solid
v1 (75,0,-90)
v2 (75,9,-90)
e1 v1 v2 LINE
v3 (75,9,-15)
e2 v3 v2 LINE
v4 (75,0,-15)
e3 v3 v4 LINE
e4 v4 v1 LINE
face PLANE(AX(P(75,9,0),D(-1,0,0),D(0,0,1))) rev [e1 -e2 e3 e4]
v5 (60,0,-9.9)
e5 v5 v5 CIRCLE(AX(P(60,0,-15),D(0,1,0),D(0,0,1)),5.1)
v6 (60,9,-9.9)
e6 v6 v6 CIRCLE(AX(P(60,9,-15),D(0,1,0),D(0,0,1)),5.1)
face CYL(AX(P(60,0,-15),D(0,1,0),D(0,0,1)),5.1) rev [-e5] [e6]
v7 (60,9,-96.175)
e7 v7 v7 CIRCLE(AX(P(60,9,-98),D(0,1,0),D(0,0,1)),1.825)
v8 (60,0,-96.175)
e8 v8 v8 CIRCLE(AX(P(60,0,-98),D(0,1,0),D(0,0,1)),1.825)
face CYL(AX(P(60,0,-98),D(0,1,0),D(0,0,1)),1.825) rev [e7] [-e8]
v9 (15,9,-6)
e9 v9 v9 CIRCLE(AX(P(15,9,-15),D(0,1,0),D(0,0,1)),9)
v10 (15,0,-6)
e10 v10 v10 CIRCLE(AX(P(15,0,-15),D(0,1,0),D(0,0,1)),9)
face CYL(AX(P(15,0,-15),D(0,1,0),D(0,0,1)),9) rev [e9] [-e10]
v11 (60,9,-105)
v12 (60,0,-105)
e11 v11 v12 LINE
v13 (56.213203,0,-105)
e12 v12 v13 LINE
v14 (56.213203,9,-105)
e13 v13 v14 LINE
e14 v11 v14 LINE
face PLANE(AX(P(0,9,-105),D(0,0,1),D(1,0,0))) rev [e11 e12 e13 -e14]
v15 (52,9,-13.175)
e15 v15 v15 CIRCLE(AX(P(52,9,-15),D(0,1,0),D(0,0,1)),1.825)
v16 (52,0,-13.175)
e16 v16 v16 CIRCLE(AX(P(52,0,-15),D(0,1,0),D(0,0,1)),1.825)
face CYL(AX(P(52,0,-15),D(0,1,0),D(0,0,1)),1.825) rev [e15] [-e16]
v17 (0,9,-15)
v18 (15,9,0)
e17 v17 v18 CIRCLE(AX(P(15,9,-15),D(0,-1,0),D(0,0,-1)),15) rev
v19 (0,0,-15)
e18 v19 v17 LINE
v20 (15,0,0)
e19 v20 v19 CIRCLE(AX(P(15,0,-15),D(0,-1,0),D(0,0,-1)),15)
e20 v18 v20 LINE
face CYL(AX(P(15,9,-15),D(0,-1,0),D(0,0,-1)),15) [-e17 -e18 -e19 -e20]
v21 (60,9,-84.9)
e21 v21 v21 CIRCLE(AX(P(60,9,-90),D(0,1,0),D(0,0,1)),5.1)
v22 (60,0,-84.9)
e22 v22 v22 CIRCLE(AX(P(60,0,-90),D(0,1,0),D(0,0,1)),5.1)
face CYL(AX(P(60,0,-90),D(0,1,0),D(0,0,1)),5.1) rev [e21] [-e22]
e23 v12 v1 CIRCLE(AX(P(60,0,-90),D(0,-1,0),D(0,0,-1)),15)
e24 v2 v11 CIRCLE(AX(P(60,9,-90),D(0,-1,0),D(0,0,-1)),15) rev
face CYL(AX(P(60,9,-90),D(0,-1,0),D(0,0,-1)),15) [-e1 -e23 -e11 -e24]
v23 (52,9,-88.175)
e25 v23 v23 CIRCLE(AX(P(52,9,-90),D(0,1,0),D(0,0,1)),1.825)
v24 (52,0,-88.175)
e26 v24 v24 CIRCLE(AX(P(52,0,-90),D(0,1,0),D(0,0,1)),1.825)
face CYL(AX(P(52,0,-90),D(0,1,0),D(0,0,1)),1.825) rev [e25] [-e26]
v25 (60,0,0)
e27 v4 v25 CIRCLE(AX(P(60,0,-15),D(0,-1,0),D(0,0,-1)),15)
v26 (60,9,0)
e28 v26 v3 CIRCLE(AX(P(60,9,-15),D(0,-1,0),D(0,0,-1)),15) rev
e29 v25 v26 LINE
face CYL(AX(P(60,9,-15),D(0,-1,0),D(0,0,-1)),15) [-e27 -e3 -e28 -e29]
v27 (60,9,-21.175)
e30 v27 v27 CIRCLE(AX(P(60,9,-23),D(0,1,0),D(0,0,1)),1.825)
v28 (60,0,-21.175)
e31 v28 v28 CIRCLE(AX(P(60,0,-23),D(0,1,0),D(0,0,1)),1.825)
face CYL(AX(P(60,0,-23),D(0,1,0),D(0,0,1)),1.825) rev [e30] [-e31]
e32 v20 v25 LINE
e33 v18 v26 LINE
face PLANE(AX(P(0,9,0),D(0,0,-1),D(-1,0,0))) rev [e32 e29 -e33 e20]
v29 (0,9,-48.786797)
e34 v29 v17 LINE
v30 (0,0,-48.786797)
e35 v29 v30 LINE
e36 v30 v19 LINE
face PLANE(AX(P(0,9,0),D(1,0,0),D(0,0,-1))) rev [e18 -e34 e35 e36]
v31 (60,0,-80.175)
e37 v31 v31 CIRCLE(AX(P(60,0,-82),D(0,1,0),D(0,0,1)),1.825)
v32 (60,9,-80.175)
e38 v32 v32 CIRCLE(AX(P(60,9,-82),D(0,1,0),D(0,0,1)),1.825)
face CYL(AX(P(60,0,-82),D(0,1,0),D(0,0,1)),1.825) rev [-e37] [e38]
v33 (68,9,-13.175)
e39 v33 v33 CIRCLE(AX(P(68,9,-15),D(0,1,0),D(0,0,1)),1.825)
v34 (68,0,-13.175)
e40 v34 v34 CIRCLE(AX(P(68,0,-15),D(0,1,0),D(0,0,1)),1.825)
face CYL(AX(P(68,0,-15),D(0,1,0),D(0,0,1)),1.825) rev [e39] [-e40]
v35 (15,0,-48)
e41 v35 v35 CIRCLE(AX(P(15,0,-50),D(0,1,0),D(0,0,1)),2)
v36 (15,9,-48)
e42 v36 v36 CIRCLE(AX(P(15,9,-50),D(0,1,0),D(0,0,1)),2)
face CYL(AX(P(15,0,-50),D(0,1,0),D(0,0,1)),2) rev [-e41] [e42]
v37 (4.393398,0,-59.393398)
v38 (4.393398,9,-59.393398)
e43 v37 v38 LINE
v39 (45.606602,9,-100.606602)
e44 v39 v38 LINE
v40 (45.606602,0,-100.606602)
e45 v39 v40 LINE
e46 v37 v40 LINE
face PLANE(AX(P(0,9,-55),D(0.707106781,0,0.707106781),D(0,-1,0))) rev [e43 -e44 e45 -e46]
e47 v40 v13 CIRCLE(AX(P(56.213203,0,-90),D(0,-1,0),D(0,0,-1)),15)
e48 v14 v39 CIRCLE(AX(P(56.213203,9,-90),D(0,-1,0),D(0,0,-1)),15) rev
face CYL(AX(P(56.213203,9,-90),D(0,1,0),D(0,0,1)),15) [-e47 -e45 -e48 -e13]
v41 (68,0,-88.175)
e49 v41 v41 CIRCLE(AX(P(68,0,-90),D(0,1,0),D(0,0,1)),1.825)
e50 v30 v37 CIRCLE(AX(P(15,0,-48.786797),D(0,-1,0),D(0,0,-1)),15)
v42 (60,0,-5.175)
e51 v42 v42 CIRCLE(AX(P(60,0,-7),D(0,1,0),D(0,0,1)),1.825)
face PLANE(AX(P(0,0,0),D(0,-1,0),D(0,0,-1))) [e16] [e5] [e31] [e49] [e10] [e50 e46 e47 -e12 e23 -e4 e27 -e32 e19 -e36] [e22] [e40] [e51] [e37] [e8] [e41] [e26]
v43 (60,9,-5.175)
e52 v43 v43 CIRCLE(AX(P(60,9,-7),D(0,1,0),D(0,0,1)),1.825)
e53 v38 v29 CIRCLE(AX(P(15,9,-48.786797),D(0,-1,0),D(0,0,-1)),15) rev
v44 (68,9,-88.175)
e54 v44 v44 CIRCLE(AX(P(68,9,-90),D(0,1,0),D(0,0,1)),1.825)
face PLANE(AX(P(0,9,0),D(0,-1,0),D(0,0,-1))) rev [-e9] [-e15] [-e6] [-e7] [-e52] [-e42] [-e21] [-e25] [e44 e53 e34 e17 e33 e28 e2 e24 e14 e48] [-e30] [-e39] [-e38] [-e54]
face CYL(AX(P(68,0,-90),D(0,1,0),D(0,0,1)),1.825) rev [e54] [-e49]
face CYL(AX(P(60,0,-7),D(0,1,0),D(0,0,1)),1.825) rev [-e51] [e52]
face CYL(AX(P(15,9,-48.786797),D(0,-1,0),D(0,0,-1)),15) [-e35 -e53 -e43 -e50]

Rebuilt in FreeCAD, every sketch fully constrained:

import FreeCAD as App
import Part
import Sketcher


def edges_at(feature, points):
    """Names of the edges that pass closest to the given points."""
    edges = feature.Shape.Edges
    near = lambda p: min(range(len(edges)), key=lambda i: edges[i].distToShape(Part.Vertex(*p))[0])
    return sorted({f"Edge{near(p) + 1}" for p in points})

doc = App.newDocument("Part")
body = doc.addObject("PartDesign::Body", "Body")

# Sketch on XZ plane
sketch1 = body.newObject("Sketcher::SketchObject", "Sketch")
sketch1.AttachmentSupport = (doc.getObject("XZ_Plane"), [""])
sketch1.MapMode = "FlatFace"
sketch1.addGeometry(Part.LineSegment(App.Vector(0, -105, 0), App.Vector(0, 0, 0)), False)
sketch1.addGeometry(Part.LineSegment(App.Vector(0, 0, 0), App.Vector(75, 0, 0)), False)
sketch1.addGeometry(Part.LineSegment(App.Vector(75, 0, 0), App.Vector(75, -105, 0)), False)
sketch1.addGeometry(Part.LineSegment(App.Vector(75, -105, 0), App.Vector(0, -105, 0)), False)
sketch1.addConstraint(Sketcher.Constraint("Coincident", 0, 2, 1, 1))
sketch1.addConstraint(Sketcher.Constraint("Coincident", 1, 2, 2, 1))
sketch1.addConstraint(Sketcher.Constraint("Coincident", 2, 2, 3, 1))
sketch1.addConstraint(Sketcher.Constraint("Coincident", 3, 2, 0, 1))
sketch1.addConstraint(Sketcher.Constraint("Vertical", 0))
sketch1.addConstraint(Sketcher.Constraint("Horizontal", 1))
sketch1.addConstraint(Sketcher.Constraint("Vertical", 2))
sketch1.addConstraint(Sketcher.Constraint("Horizontal", 3))
sketch1.addConstraint(Sketcher.Constraint("Coincident", 0, 2, -1, 1))
sketch1.addConstraint(Sketcher.Constraint("DistanceX", 1, 1, 1, 2, 75.0))
sketch1.addConstraint(Sketcher.Constraint("DistanceY", 0, 1, 0, 2, 105.0))
pad1 = body.newObject("PartDesign::Pad", "Pad")
pad1.Profile = sketch1
pad1.Length = 9
pad1.Reversed = True

# Sketch on XZ plane
sketch2 = body.newObject("Sketcher::SketchObject", "Sketch001")
sketch2.AttachmentSupport = (doc.getObject("XZ_Plane"), [""])
sketch2.MapMode = "FlatFace"
sketch2.AttachmentOffset = App.Placement(App.Vector(0, 0, -9), App.Rotation())
sketch2.addGeometry(Part.Circle(App.Vector(15, -15, 0), App.Vector(0, 0, 1), 9), False)
sketch2.addGeometry(Part.Circle(App.Vector(15, -50, 0), App.Vector(0, 0, 1), 2), False)
sketch2.addGeometry(Part.Circle(App.Vector(60, -15, 0), App.Vector(0, 0, 1), 5.1), False)
sketch2.addGeometry(Part.Circle(App.Vector(60, -23, 0), App.Vector(0, 0, 1), 1.8), False)
sketch2.addGeometry(Part.Circle(App.Vector(60, -7, 0), App.Vector(0, 0, 1), 1.8), False)
sketch2.addGeometry(Part.Circle(App.Vector(68, -15, 0), App.Vector(0, 0, 1), 1.8), False)
sketch2.addGeometry(Part.Circle(App.Vector(52, -15, 0), App.Vector(0, 0, 1), 1.8), False)
sketch2.addGeometry(Part.Circle(App.Vector(60, -90, 0), App.Vector(0, 0, 1), 5.1), False)
sketch2.addGeometry(Part.Circle(App.Vector(60, -98, 0), App.Vector(0, 0, 1), 1.8), False)
sketch2.addGeometry(Part.Circle(App.Vector(60, -82, 0), App.Vector(0, 0, 1), 1.8), False)
sketch2.addGeometry(Part.Circle(App.Vector(68, -90, 0), App.Vector(0, 0, 1), 1.8), False)
sketch2.addGeometry(Part.Circle(App.Vector(52, -90, 0), App.Vector(0, 0, 1), 1.8), False)
sketch2.addConstraint(Sketcher.Constraint("Equal", 3, 4))
sketch2.addConstraint(Sketcher.Constraint("Equal", 4, 5))
sketch2.addConstraint(Sketcher.Constraint("Equal", 5, 6))
sketch2.addConstraint(Sketcher.Constraint("Equal", 2, 7))
sketch2.addConstraint(Sketcher.Constraint("Equal", 6, 8))
sketch2.addConstraint(Sketcher.Constraint("Equal", 8, 9))
sketch2.addConstraint(Sketcher.Constraint("Equal", 9, 10))
sketch2.addConstraint(Sketcher.Constraint("Equal", 10, 11))
sketch2.addConstraint(Sketcher.Constraint("Horizontal", 0, 3, 2, 3))
sketch2.addConstraint(Sketcher.Constraint("Horizontal", 2, 3, 5, 3))
sketch2.addConstraint(Sketcher.Constraint("Horizontal", 5, 3, 6, 3))
sketch2.addConstraint(Sketcher.Constraint("Horizontal", 7, 3, 10, 3))
sketch2.addConstraint(Sketcher.Constraint("Horizontal", 10, 3, 11, 3))
sketch2.addConstraint(Sketcher.Constraint("Vertical", 0, 3, 1, 3))
sketch2.addConstraint(Sketcher.Constraint("Vertical", 2, 3, 3, 3))
sketch2.addConstraint(Sketcher.Constraint("Vertical", 3, 3, 4, 3))
sketch2.addConstraint(Sketcher.Constraint("Vertical", 4, 3, 7, 3))
sketch2.addConstraint(Sketcher.Constraint("Vertical", 7, 3, 8, 3))
sketch2.addConstraint(Sketcher.Constraint("Vertical", 8, 3, 9, 3))
sketch2.addConstraint(Sketcher.Constraint("Vertical", 5, 3, 10, 3))
sketch2.addConstraint(Sketcher.Constraint("Vertical", 6, 3, 11, 3))
sketch2.addConstraint(Sketcher.Constraint("Diameter", 0, 18.0))
sketch2.addConstraint(Sketcher.Constraint("Diameter", 1, 4.0))
sketch2.addConstraint(Sketcher.Constraint("Diameter", 2, 10.2))
sketch2.addConstraint(Sketcher.Constraint("Diameter", 3, 3.65))
sketch2.addConstraint(Sketcher.Constraint("DistanceX", -1, 1, 0, 3, 15.0))
sketch2.addConstraint(Sketcher.Constraint("DistanceY", 0, 3, -1, 1, 15.0))
sketch2.addConstraint(Sketcher.Constraint("DistanceY", 1, 3, -1, 1, 50.0))
sketch2.addConstraint(Sketcher.Constraint("DistanceX", -1, 1, 2, 3, 60.0))
sketch2.addConstraint(Sketcher.Constraint("DistanceY", 3, 3, -1, 1, 23.0))
sketch2.addConstraint(Sketcher.Constraint("DistanceY", 4, 3, -1, 1, 7.0))
sketch2.addConstraint(Sketcher.Constraint("DistanceX", -1, 1, 5, 3, 68.0))
sketch2.addConstraint(Sketcher.Constraint("DistanceX", -1, 1, 6, 3, 52.0))
sketch2.addConstraint(Sketcher.Constraint("DistanceY", 7, 3, -1, 1, 90.0))
sketch2.addConstraint(Sketcher.Constraint("DistanceY", 8, 3, -1, 1, 98.0))
sketch2.addConstraint(Sketcher.Constraint("DistanceY", 9, 3, -1, 1, 82.0))
pocket1 = body.newObject("PartDesign::Pocket", "Pocket")
pocket1.Profile = sketch2
pocket1.Length = 9
pocket1.Reversed = True
doc.recompute()

chamfer = body.newObject("PartDesign::Chamfer", "Chamfer")
chamfer.Base = (pocket1, edges_at(pocket1, [(0, 4.5, -105)]))
chamfer.Size = 50
doc.recompute()

fillet = body.newObject("PartDesign::Fillet", "Fillet")
fillet.Base = (chamfer, edges_at(chamfer, [
    (0, 4.5, -55),
    (50, 4.5, -105),
    (75, 4.5, -105),
    (75, 4.5, 0),
    (0, 4.5, 0),
]))
fillet.Radius = 15

doc.recompute()
